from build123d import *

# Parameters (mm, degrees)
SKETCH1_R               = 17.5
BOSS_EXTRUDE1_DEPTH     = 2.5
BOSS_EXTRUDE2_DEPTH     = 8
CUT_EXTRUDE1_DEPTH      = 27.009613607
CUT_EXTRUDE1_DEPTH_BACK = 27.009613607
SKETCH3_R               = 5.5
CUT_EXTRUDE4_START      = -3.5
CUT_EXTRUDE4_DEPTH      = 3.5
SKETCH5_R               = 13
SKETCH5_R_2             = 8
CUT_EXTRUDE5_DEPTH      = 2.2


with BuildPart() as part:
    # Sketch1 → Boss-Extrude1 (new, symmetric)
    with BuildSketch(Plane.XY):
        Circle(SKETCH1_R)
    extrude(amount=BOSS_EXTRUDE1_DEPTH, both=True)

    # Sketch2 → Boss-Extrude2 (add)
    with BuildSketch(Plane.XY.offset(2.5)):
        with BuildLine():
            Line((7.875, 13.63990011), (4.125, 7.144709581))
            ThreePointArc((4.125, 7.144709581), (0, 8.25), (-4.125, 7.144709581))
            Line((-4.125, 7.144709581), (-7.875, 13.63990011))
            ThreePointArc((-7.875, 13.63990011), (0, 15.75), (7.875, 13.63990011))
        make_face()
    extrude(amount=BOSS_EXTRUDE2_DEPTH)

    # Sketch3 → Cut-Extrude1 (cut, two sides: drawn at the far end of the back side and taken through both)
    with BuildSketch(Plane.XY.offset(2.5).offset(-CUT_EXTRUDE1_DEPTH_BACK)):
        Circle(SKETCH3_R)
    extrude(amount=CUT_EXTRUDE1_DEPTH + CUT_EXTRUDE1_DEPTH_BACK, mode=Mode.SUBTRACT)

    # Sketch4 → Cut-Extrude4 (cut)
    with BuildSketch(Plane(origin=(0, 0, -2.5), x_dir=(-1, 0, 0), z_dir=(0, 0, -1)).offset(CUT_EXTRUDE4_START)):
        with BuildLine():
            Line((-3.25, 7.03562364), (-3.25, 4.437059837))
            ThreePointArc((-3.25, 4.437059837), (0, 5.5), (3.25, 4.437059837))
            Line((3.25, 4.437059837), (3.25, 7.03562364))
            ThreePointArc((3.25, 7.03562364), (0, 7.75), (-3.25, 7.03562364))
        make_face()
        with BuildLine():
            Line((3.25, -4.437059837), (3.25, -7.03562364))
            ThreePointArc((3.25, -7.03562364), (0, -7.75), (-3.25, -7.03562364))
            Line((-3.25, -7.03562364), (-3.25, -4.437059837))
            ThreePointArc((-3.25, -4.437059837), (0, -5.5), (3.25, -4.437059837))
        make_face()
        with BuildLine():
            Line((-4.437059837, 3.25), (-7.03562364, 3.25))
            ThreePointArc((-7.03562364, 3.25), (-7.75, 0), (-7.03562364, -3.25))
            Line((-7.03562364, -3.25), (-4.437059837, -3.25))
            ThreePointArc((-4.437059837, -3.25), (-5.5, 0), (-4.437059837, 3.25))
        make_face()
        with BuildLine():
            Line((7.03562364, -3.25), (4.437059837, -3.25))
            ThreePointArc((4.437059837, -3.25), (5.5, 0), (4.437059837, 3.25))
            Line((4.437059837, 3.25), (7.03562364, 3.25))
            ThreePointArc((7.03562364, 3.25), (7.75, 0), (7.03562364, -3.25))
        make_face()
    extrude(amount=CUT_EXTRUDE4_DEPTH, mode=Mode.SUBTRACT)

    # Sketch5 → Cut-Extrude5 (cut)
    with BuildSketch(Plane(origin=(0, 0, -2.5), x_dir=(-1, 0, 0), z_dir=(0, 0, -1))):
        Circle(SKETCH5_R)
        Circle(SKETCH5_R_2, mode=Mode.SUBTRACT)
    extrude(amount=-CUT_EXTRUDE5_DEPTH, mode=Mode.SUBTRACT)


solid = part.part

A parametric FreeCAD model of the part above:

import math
import FreeCAD as App
import Part
import Sketcher
from FreeCAD import Vector
Q = App.Units.Quantity

doc = App.newDocument("Part")
params = doc.addObject("Spreadsheet::Sheet", "Params")
for row, (alias, value) in enumerate([
    ("sketch1_diameter", "35 mm"),
    ("pad1_length", "5 mm"),
    ("sketch2_radius", "15.75 mm"),
    ("sketch2_radius2", "8.25 mm"),
    ("pad2_length", "8 mm"),
    ("sketch3_diameter", "11 mm"),
    ("sketch4_radius", "5.5 mm"),
    ("sketch4_radius2", "7.75 mm"),
    ("pocket2_length", "3.5 mm"),
    ("sketch5_diameter", "26 mm"),
    ("sketch5_diameter2", "16 mm"),
    ("pocket3_length", "2.2 mm"),
], start=1):
    params.set(f"A{row}", alias)
    params.set(f"B{row}", "=" + value)
    params.setAlias(f"B{row}", alias)

body = doc.addObject("PartDesign::Body", "Body")

sketch1 = body.newObject("Sketcher::SketchObject", "Sketch")
sketch1.AttachmentSupport = (doc.getObject("XY_Plane"), [""])
sketch1.MapMode = "FlatFace"
sketch1.addGeometry(Part.Circle(Vector(0, 0, 0), Vector(0, 0, 1), 17.5), False)
sketch1.addConstraint(Sketcher.Constraint("Coincident", 0, 3, -1, 1))
sketch1.addConstraint(Sketcher.Constraint("Diameter", 0, 35.0))
sketch1.setExpression("Constraints[1]", "Params.sketch1_diameter")
pad1 = body.newObject("PartDesign::Pad", "Pad")
pad1.Profile = sketch1
pad1.setExpression("Length", "Params.pad1_length")
pad1.Midplane = True

sketch2 = body.newObject("Sketcher::SketchObject", "Sketch001")
sketch2.AttachmentSupport = (doc.getObject("XY_Plane"), [""])
sketch2.MapMode = "FlatFace"
sketch2.AttachmentOffset = App.Placement(Vector(0, 0, 2.5), App.Rotation())
sketch2.addGeometry(Part.LineSegment(Vector(4.125, 7.14471, 0), Vector(7.875, 13.6399, 0)), False)
sketch2.addGeometry(Part.ArcOfCircle(Part.Circle(Vector(0, 0, 0), Vector(0, 0, 1), 15.75), math.radians(60), math.radians(120)), False)
sketch2.addGeometry(Part.LineSegment(Vector(-7.875, 13.6399, 0), Vector(-4.125, 7.14471, 0)), False)
sketch2.addGeometry(Part.ArcOfCircle(Part.Circle(Vector(0, 0, 0), Vector(0, 0, 1), 8.25), math.radians(60), math.radians(120)), False)
sketch2.addConstraint(Sketcher.Constraint("Coincident", 0, 2, 1, 1))
sketch2.addConstraint(Sketcher.Constraint("Coincident", 1, 2, 2, 1))
sketch2.addConstraint(Sketcher.Constraint("Coincident", 2, 2, 3, 2))
sketch2.addConstraint(Sketcher.Constraint("Coincident", 3, 1, 0, 1))
sketch2.addConstraint(Sketcher.Constraint("Coincident", 1, 3, -1, 1))
sketch2.addConstraint(Sketcher.Constraint("Coincident", 3, 3, -1, 1))
sketch2.addConstraint(Sketcher.Constraint("Horizontal", 0, 2, 1, 2))
sketch2.addConstraint(Sketcher.Constraint("Horizontal", 2, 2, 3, 1))
sketch2.addConstraint(Sketcher.Constraint("Angle", 0, Q("60 deg")))
sketch2.addConstraint(Sketcher.Constraint("Radius", 1, 15.75))
sketch2.addConstraint(Sketcher.Constraint("Radius", 3, 8.25))
sketch2.addConstraint(Sketcher.Constraint("DistanceX", 2, 2, 0, 2, 12.0))
sketch2.setExpression("Constraints[9]", "Params.sketch2_radius")
sketch2.setExpression("Constraints[10]", "Params.sketch2_radius2")
pad2 = body.newObject("PartDesign::Pad", "Pad001")
pad2.Profile = sketch2
pad2.setExpression("Length", "Params.pad2_length")

sketch3 = body.newObject("Sketcher::SketchObject", "Sketch002")
sketch3.AttachmentSupport = (doc.getObject("XY_Plane"), [""])
sketch3.MapMode = "FlatFace"
sketch3.AttachmentOffset = App.Placement(Vector(0, 0, 2.5), App.Rotation())
sketch3.addGeometry(Part.Circle(Vector(0, 0, 0), Vector(0, 0, 1), 5.5), False)
sketch3.addConstraint(Sketcher.Constraint("Coincident", 0, 3, -1, 1))
sketch3.addConstraint(Sketcher.Constraint("Diameter", 0, 11.0))
sketch3.setExpression("Constraints[1]", "Params.sketch3_diameter")
pocket1 = body.newObject("PartDesign::Pocket", "Pocket")
pocket1.Profile = sketch3
pocket1.Type = "ThroughAll"
pocket1.Midplane = True

sketch4 = body.newObject("Sketcher::SketchObject", "Sketch003")
sketch4.AttachmentSupport = (doc.getObject("XY_Plane"), [""])
sketch4.MapMode = "FlatFace"
sketch4.AttachmentOffset = App.Placement(Vector(0, 0, 1), App.Rotation())
sketch4.addGeometry(Part.LineSegment(Vector(3.25, 7.035624, 0), Vector(3.25, 4.43706, 0)), False)
sketch4.addGeometry(Part.ArcOfCircle(Part.Circle(Vector(0, 0, 0), Vector(0, 0, 1), 5.5), math.radians(53.778453), math.radians(126.221547)), False)
sketch4.addGeometry(Part.LineSegment(Vector(-3.25, 4.43706, 0), Vector(-3.25, 7.035624, 0)), False)
sketch4.addGeometry(Part.ArcOfCircle(Part.Circle(Vector(0, 0, 0), Vector(0, 0, 1), 7.75), math.radians(65.206138), math.radians(114.793862)), False)
sketch4.addGeometry(Part.LineSegment(Vector(-3.25, -7.035624, 0), Vector(-3.25, -4.43706, 0)), False)
sketch4.addGeometry(Part.ArcOfCircle(Part.Circle(Vector(0, 0, 0), Vector(0, 0, 1), 5.5), math.radians(-126.221547), math.radians(-53.778453)), False)
sketch4.addGeometry(Part.LineSegment(Vector(3.25, -4.43706, 0), Vector(3.25, -7.035624, 0)), False)
sketch4.addGeometry(Part.ArcOfCircle(Part.Circle(Vector(0, 0, 0), Vector(0, 0, 1), 7.75), math.radians(-114.793862), math.radians(-65.206138)), False)
sketch4.addGeometry(Part.LineSegment(Vector(4.43706, 3.25, 0), Vector(7.035624, 3.25, 0)), False)
sketch4.addGeometry(Part.ArcOfCircle(Part.Circle(Vector(0, 0, 0), Vector(0, 0, 1), 7.75), math.radians(-24.793862), math.radians(24.793862)), False)
sketch4.addGeometry(Part.LineSegment(Vector(7.035624, -3.25, 0), Vector(4.43706, -3.25, 0)), False)
sketch4.addGeometry(Part.ArcOfCircle(Part.Circle(Vector(0, 0, 0), Vector(0, 0, 1), 5.5), math.radians(-36.221547), math.radians(36.221547)), False)
sketch4.addGeometry(Part.LineSegment(Vector(-4.43706, -3.25, 0), Vector(-7.035624, -3.25, 0)), False)
sketch4.addGeometry(Part.ArcOfCircle(Part.Circle(Vector(0, 0, 0), Vector(0, 0, 1), 7.75), math.radians(155.206138), math.radians(204.793862)), False)
sketch4.addGeometry(Part.LineSegment(Vector(-7.035624, 3.25, 0), Vector(-4.43706, 3.25, 0)), False)
sketch4.addGeometry(Part.ArcOfCircle(Part.Circle(Vector(0, 0, 0), Vector(0, 0, 1), 5.5), math.radians(143.778453), math.radians(216.221547)), False)
sketch4.addConstraint(Sketcher.Constraint("Coincident", 0, 2, 1, 1))
sketch4.addConstraint(Sketcher.Constraint("Coincident", 1, 2, 2, 1))
sketch4.addConstraint(Sketcher.Constraint("Coincident", 2, 2, 3, 2))
sketch4.addConstraint(Sketcher.Constraint("Coincident", 3, 1, 0, 1))
sketch4.addConstraint(Sketcher.Constraint("Coincident", 4, 2, 5, 1))
sketch4.addConstraint(Sketcher.Constraint("Coincident", 5, 2, 6, 1))
sketch4.addConstraint(Sketcher.Constraint("Coincident", 6, 2, 7, 2))
sketch4.addConstraint(Sketcher.Constraint("Coincident", 7, 1, 4, 1))
sketch4.addConstraint(Sketcher.Constraint("Coincident", 8, 2, 9, 2))
sketch4.addConstraint(Sketcher.Constraint("Coincident", 9, 1, 10, 1))
sketch4.addConstraint(Sketcher.Constraint("Coincident", 10, 2, 11, 1))
sketch4.addConstraint(Sketcher.Constraint("Coincident", 11, 2, 8, 1))
sketch4.addConstraint(Sketcher.Constraint("Coincident", 12, 2, 13, 2))
sketch4.addConstraint(Sketcher.Constraint("Coincident", 13, 1, 14, 1))
sketch4.addConstraint(Sketcher.Constraint("Coincident", 14, 2, 15, 1))
sketch4.addConstraint(Sketcher.Constraint("Coincident", 15, 2, 12, 1))
sketch4.addConstraint(Sketcher.Constraint("Vertical", 0))
sketch4.addConstraint(Sketcher.Constraint("Vertical", 2))
sketch4.addConstraint(Sketcher.Constraint("Vertical", 4))
sketch4.addConstraint(Sketcher.Constraint("Vertical", 6))
sketch4.addConstraint(Sketcher.Constraint("Horizontal", 8))
sketch4.addConstraint(Sketcher.Constraint("Horizontal", 10))
sketch4.addConstraint(Sketcher.Constraint("Horizontal", 12))
sketch4.addConstraint(Sketcher.Constraint("Horizontal", 14))
sketch4.addConstraint(Sketcher.Constraint("Coincident", 1, 3, -1, 1))
sketch4.addConstraint(Sketcher.Constraint("Coincident", 3, 3, -1, 1))
sketch4.addConstraint(Sketcher.Constraint("Coincident", 5, 3, -1, 1))
sketch4.addConstraint(Sketcher.Constraint("Coincident", 7, 3, -1, 1))
sketch4.addConstraint(Sketcher.Constraint("Coincident", 9, 3, -1, 1))
sketch4.addConstraint(Sketcher.Constraint("Coincident", 11, 3, -1, 1))
sketch4.addConstraint(Sketcher.Constraint("Coincident", 13, 3, -1, 1))
sketch4.addConstraint(Sketcher.Constraint("Coincident", 15, 3, -1, 1))
sketch4.addConstraint(Sketcher.Constraint("Equal", 1, 5))
sketch4.addConstraint(Sketcher.Constraint("Equal", 3, 7))
sketch4.addConstraint(Sketcher.Constraint("Equal", 7, 9))
sketch4.addConstraint(Sketcher.Constraint("Equal", 5, 11))
sketch4.addConstraint(Sketcher.Constraint("Equal", 9, 13))
sketch4.addConstraint(Sketcher.Constraint("Equal", 11, 15))
sketch4.addConstraint(Sketcher.Constraint("Horizontal", 0, 2, 1, 2))
sketch4.addConstraint(Sketcher.Constraint("Horizontal", 4, 2, 5, 2))
sketch4.addConstraint(Sketcher.Constraint("Horizontal", 10, 2, 12, 2))
sketch4.addConstraint(Sketcher.Constraint("Horizontal", 11, 2, 13, 1))
sketch4.addConstraint(Sketcher.Constraint("Vertical", 2, 2, 4, 2))
sketch4.addConstraint(Sketcher.Constraint("Vertical", 8, 2, 9, 1))
sketch4.addConstraint(Sketcher.Constraint("Equal", 14, 0))
sketch4.addConstraint(Sketcher.Constraint("Radius", 1, 5.5))
sketch4.addConstraint(Sketcher.Constraint("Radius", 3, 7.75))
sketch4.addConstraint(Sketcher.Constraint("DistanceX", 2, 2, 0, 2, 6.5))
sketch4.setExpression("Constraints[45]", "Params.sketch4_radius")
sketch4.setExpression("Constraints[46]", "Params.sketch4_radius2")
pocket2 = body.newObject("PartDesign::Pocket", "Pocket001")
pocket2.Profile = sketch4
pocket2.setExpression("Length", "Params.pocket2_length")

sketch5 = body.newObject("Sketcher::SketchObject", "Sketch004")
sketch5.AttachmentSupport = (doc.getObject("XY_Plane"), [""])
sketch5.MapMode = "FlatFace"
sketch5.AttachmentOffset = App.Placement(Vector(0, 0, -2.5), App.Rotation())
sketch5.addGeometry(Part.Circle(Vector(0, 0, 0), Vector(0, 0, 1), 13), False)
sketch5.addGeometry(Part.Circle(Vector(0, 0, 0), Vector(0, 0, 1), 8), False)
sketch5.addConstraint(Sketcher.Constraint("Coincident", 0, 3, -1, 1))
sketch5.addConstraint(Sketcher.Constraint("Coincident", 1, 3, -1, 1))
sketch5.addConstraint(Sketcher.Constraint("Diameter", 0, 26.0))
sketch5.addConstraint(Sketcher.Constraint("Diameter", 1, 16.0))
sketch5.setExpression("Constraints[2]", "Params.sketch5_diameter")
sketch5.setExpression("Constraints[3]", "Params.sketch5_diameter2")
pocket3 = body.newObject("PartDesign::Pocket", "Pocket002")
pocket3.Profile = sketch5
pocket3.setExpression("Length", "Params.pocket3_length")
pocket3.Reversed = True

doc.recompute()
